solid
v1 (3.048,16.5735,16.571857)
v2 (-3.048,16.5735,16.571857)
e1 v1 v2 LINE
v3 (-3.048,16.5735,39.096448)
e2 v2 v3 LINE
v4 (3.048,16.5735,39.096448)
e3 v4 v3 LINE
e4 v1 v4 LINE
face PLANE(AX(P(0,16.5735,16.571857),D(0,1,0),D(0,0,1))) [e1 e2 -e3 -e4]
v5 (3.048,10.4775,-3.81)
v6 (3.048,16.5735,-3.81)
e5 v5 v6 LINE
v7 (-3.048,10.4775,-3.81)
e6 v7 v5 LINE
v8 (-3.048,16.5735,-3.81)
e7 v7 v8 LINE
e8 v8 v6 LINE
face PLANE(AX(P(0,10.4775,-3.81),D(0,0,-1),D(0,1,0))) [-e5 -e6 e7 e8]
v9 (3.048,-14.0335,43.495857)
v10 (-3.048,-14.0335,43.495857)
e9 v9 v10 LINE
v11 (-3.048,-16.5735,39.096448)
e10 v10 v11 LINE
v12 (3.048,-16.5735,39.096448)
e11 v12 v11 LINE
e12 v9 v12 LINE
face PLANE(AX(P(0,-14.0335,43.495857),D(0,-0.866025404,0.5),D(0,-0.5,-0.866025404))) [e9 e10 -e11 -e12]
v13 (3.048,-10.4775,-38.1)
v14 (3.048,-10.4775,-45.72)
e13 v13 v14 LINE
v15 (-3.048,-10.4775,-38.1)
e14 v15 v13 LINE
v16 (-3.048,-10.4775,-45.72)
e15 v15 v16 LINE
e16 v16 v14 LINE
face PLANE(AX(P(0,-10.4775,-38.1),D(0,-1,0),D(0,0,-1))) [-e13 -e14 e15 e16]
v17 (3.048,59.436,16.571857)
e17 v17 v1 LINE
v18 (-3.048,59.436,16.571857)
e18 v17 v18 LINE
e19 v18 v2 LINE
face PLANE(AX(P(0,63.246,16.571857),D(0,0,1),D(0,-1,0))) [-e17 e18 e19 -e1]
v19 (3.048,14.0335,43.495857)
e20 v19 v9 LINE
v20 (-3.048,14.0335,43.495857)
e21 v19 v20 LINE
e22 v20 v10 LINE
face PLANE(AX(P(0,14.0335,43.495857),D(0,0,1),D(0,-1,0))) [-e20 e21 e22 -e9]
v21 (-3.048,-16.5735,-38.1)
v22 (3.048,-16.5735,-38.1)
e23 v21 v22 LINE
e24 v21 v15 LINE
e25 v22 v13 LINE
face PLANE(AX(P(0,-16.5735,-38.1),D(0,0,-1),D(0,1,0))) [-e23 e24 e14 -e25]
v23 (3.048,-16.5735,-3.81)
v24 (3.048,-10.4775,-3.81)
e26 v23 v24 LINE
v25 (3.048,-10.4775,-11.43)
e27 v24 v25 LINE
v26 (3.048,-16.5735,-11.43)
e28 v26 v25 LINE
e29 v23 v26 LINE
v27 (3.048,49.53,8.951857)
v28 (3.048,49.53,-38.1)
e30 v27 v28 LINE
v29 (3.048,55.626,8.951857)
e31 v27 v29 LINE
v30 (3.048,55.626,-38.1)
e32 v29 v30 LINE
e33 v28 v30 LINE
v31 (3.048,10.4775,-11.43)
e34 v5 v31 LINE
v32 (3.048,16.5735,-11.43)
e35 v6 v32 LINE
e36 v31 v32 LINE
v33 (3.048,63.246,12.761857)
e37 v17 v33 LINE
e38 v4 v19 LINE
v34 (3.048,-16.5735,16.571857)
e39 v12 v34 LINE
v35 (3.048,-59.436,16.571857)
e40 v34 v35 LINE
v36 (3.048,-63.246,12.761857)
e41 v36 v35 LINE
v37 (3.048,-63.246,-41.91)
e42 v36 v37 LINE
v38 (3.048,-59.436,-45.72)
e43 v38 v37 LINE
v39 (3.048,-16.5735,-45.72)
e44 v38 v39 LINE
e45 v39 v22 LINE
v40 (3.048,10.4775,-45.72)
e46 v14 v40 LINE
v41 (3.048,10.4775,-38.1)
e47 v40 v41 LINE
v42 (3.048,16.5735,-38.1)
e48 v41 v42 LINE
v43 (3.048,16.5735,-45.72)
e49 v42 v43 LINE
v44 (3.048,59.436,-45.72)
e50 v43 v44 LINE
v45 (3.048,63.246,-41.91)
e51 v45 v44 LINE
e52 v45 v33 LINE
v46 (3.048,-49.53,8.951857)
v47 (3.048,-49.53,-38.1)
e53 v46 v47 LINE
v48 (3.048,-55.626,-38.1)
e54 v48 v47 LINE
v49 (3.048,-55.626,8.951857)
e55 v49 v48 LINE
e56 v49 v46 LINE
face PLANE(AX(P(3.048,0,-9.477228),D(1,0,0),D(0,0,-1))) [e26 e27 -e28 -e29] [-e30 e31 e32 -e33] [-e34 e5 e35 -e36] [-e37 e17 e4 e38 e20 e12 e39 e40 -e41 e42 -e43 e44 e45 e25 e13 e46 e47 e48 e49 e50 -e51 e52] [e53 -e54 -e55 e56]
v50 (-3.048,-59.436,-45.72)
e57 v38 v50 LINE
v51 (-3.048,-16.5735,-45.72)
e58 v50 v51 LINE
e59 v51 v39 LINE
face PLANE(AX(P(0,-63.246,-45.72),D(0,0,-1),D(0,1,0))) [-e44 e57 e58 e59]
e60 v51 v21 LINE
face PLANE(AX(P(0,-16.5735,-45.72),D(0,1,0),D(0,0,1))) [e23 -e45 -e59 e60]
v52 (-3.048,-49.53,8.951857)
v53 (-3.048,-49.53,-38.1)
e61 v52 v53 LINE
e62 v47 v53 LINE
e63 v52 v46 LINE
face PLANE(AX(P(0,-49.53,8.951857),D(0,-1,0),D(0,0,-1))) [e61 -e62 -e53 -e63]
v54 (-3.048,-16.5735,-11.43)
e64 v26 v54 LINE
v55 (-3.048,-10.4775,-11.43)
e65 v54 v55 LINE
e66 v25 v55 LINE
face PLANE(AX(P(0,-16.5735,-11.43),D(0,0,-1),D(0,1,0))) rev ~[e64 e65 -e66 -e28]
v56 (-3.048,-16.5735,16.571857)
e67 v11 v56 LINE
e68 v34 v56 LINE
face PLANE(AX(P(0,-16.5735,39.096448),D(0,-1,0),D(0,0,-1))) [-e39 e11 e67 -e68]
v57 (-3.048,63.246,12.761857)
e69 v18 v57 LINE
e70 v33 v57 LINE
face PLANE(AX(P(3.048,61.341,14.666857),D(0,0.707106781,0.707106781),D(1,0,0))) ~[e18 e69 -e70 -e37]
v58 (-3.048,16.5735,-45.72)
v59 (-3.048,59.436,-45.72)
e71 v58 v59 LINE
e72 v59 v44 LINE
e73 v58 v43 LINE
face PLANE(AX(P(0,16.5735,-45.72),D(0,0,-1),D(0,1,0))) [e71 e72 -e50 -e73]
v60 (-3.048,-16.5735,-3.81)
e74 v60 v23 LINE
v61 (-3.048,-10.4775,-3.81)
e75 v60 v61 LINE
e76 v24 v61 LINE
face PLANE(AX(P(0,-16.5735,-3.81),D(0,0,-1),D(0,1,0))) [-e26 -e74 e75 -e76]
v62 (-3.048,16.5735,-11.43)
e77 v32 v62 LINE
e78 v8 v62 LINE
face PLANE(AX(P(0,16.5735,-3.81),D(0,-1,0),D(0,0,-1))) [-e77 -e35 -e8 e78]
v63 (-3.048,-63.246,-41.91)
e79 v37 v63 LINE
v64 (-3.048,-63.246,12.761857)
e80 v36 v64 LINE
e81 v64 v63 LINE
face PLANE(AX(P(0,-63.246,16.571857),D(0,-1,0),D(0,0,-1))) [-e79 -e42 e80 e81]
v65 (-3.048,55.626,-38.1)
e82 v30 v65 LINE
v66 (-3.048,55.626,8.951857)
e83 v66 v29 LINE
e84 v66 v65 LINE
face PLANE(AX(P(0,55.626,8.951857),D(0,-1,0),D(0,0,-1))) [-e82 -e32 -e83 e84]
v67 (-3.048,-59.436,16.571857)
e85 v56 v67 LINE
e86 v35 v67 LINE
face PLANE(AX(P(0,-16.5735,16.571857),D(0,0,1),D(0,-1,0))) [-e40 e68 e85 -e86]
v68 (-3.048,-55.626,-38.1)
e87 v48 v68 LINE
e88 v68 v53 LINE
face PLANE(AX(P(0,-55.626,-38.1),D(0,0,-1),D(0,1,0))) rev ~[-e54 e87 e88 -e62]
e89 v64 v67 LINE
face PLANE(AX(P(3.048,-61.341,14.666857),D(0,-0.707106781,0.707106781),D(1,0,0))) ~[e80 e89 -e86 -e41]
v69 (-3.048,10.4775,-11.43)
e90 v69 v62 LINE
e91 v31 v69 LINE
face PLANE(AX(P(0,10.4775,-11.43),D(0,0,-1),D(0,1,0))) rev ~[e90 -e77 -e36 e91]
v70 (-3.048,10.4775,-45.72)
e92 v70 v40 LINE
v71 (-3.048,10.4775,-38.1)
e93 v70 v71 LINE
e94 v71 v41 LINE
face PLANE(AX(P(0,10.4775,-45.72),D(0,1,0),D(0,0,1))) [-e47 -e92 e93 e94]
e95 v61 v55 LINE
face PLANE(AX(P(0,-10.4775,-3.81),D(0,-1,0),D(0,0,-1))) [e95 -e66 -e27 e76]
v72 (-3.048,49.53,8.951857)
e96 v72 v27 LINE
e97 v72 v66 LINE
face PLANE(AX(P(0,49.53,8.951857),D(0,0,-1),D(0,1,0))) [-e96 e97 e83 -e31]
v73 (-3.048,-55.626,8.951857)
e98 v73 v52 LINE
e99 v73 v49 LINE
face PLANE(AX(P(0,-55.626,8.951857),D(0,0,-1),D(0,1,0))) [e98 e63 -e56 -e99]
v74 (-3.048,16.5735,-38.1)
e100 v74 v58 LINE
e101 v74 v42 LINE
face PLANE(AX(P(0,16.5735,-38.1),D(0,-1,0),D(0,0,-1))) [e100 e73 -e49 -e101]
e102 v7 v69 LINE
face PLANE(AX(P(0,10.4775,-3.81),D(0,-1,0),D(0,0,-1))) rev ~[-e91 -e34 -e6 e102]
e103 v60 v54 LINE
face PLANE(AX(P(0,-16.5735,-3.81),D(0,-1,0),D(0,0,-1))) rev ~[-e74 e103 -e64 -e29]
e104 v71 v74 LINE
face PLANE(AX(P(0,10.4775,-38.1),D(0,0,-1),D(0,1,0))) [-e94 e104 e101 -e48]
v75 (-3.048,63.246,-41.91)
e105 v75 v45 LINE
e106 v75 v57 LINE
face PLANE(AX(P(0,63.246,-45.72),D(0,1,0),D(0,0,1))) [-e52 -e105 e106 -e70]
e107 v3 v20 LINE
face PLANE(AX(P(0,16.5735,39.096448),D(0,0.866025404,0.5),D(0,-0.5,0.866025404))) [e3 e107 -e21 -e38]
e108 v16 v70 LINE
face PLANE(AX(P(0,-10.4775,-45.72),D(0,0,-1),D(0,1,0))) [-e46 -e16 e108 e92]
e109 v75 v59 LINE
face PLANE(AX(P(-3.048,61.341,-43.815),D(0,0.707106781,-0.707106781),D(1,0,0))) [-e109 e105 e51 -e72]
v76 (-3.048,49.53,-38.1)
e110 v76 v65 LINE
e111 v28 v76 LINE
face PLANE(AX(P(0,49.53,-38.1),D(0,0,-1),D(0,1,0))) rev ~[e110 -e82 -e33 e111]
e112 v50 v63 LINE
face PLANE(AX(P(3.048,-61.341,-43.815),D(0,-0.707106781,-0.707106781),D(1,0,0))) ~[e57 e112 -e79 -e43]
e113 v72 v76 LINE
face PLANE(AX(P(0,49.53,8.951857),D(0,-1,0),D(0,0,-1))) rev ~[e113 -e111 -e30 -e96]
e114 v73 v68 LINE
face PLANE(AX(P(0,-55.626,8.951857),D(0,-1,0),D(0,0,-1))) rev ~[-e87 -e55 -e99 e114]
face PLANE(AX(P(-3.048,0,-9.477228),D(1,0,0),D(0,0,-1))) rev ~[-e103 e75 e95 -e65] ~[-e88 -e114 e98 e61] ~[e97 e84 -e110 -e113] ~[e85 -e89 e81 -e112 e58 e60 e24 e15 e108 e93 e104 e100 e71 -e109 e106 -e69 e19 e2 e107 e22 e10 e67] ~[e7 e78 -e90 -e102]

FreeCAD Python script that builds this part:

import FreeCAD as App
import Part
import Sketcher

V = App.Vector
Q = App.Units.Quantity


def edges_at(feature, points):
    """Names of the edges that pass closest to the given points."""
    edges = feature.Shape.Edges
    near = lambda p: min(range(len(edges)), key=lambda i: edges[i].distToShape(Part.Vertex(*p))[0])
    return sorted({f"Edge{near(p) + 1}" for p in points})


def add_polygon(sketch, points):
    """Adds a closed chain of lines whose ends are joined by coincident constraints."""
    first, n = sketch.GeometryCount, len(points)
    for a, b in zip(points, points[1:] + points[:1]):
        sketch.addGeometry(Part.LineSegment(App.Vector(*a, 0), App.Vector(*b, 0)), False)
    for i in range(n):
        sketch.addConstraint(Sketcher.Constraint("Coincident", first + i, 2, first + (i + 1) % n, 1))

doc = App.newDocument("Part")
body = doc.addObject("PartDesign::Body", "Body")

# Sketch on YZ plane
sketch1 = doc.addObject("Sketcher::SketchObject", "Sketch")
body.addObject(sketch1)
sketch1.AttachmentSupport = (doc.YZ_Plane, [""])
sketch1.MapMode = "FlatFace"
add_polygon(sketch1, [(-63, -46), (-17, -46), (-17, -38), (-10, -38), (-10, -46), (10, -46), (10, -38), (17, -38), (17, -46), (63, -46), (63, 17), (17, 17), (17, 39), (14, 43), (-14, 43), (-17, 39), (-17, 17), (-63, 17)])  # lines 0-17
add_polygon(sketch1, [(-56, -38), (-56, 9), (-50, 9), (-50, -38)])  # lines 18-21
add_polygon(sketch1, [(-17, -11), (-17, -4), (-10, -4), (-10, -11)])  # lines 22-25
add_polygon(sketch1, [(10, -11), (10, -4), (17, -4), (17, -11)])  # lines 26-29
add_polygon(sketch1, [(50, -38), (50, 9), (56, 9), (56, -38)])  # lines 30-33
sketch1.addConstraint(Sketcher.Constraint("Horizontal", 0))
sketch1.addConstraint(Sketcher.Constraint("Vertical", 1))
sketch1.addConstraint(Sketcher.Constraint("Horizontal", 2))
sketch1.addConstraint(Sketcher.Constraint("Vertical", 3))
sketch1.addConstraint(Sketcher.Constraint("Horizontal", 4))
sketch1.addConstraint(Sketcher.Constraint("Vertical", 5))
sketch1.addConstraint(Sketcher.Constraint("Horizontal", 6))
sketch1.addConstraint(Sketcher.Constraint("Vertical", 7))
sketch1.addConstraint(Sketcher.Constraint("Horizontal", 8))
sketch1.addConstraint(Sketcher.Constraint("Vertical", 9))
sketch1.addConstraint(Sketcher.Constraint("Horizontal", 10))
sketch1.addConstraint(Sketcher.Constraint("Vertical", 11))
sketch1.addConstraint(Sketcher.Constraint("Horizontal", 13))
sketch1.addConstraint(Sketcher.Constraint("Vertical", 15))
sketch1.addConstraint(Sketcher.Constraint("Horizontal", 16))
sketch1.addConstraint(Sketcher.Constraint("Vertical", 17))
sketch1.addConstraint(Sketcher.Constraint("Vertical", 18))
sketch1.addConstraint(Sketcher.Constraint("Horizontal", 19))
sketch1.addConstraint(Sketcher.Constraint("Vertical", 20))
sketch1.addConstraint(Sketcher.Constraint("Horizontal", 21))
sketch1.addConstraint(Sketcher.Constraint("Vertical", 22))
sketch1.addConstraint(Sketcher.Constraint("Horizontal", 23))
sketch1.addConstraint(Sketcher.Constraint("Vertical", 24))
sketch1.addConstraint(Sketcher.Constraint("Horizontal", 25))
sketch1.addConstraint(Sketcher.Constraint("Vertical", 26))
sketch1.addConstraint(Sketcher.Constraint("Horizontal", 27))
sketch1.addConstraint(Sketcher.Constraint("Vertical", 28))
sketch1.addConstraint(Sketcher.Constraint("Horizontal", 29))
sketch1.addConstraint(Sketcher.Constraint("Vertical", 30))
sketch1.addConstraint(Sketcher.Constraint("Horizontal", 31))
sketch1.addConstraint(Sketcher.Constraint("Vertical", 32))
sketch1.addConstraint(Sketcher.Constraint("Horizontal", 33))
sketch1.addConstraint(Sketcher.Constraint("Symmetric", 2, 2, 5, 2, -2))
sketch1.addConstraint(Sketcher.Constraint("Symmetric", 0, 2, 7, 2, -2))
sketch1.addConstraint(Sketcher.Constraint("Symmetric", 11, 2, 14, 2, -2))
sketch1.addConstraint(Sketcher.Constraint("Symmetric", 9, 2, 16, 2, -2))
sketch1.addConstraint(Sketcher.Constraint("Symmetric", 23, 2, 26, 2, -2))
sketch1.addConstraint(Sketcher.Constraint("Symmetric", 25, 2, 28, 2, -2))
sketch1.addConstraint(Sketcher.Constraint("Symmetric", 19, 2, 30, 2, -2))
sketch1.addConstraint(Sketcher.Constraint("Symmetric", 21, 2, 32, 2, -2))
sketch1.addConstraint(Sketcher.Constraint("Horizontal", 0, 2, 3, 2))
sketch1.addConstraint(Sketcher.Constraint("Horizontal", 6, 2, 20, 2))
sketch1.addConstraint(Sketcher.Constraint("Vertical", 7, 2, 10, 2))
sketch1.addConstraint(Sketcher.Constraint("Vertical", 15, 2, 22, 2))
sketch1.addConstraint(Sketcher.Constraint("Vertical", 3, 2, 23, 2))
sketch1.addConstraint(Sketcher.Constraint("Equal", 6, 19))
sketch1.addConstraint(Sketcher.Constraint("Equal", 7, 22))
sketch1.addConstraint(Sketcher.Constraint("Equal", 12, 14))
sketch1.addConstraint(Sketcher.Constraint("DistanceY", 1, 1, 1, 2, Q("0.3 in")))
sketch1.addConstraint(Sketcher.Constraint("Angle", 12, Q("120 deg")))
sketch1.addConstraint(Sketcher.Constraint("Distance", 12, Q("0.2 in")))
sketch1.addConstraint(Sketcher.Constraint("DistanceX", 2, 1, 2, 2, Q("0.24 in")))
sketch1.addConstraint(Sketcher.Constraint("DistanceY", 0, 2, -1, 1, Q("1.8 in")))
sketch1.addConstraint(Sketcher.Constraint("DistanceX", 16, 2, 18, 2, Q("0.3 in")))
sketch1.addConstraint(Sketcher.Constraint("DistanceY", 18, 2, 16, 2, Q("0.3 in")))
sketch1.addConstraint(Sketcher.Constraint("DistanceX", 4, 1, 4, 2, Q("0.825 in")))
sketch1.addConstraint(Sketcher.Constraint("DistanceX", -1, 1, 8, 2, Q("2.49 in")))
sketch1.addConstraint(Sketcher.Constraint("DistanceY", 22, 2, -1, 1, Q("0.15 in")))
sketch1.addConstraint(Sketcher.Constraint("DistanceY", 10, 2, 12, 2, Q("1.06 in")))
sketch1.addConstraint(Sketcher.Constraint("DistanceY", 9, 1, 9, 2, Q("62.291857 mm")))
pad1 = doc.addObject("PartDesign::Pad", "Pad")
body.addObject(pad1)
pad1.Profile = sketch1
pad1.Length = Q("0.24 in")
pad1.Midplane = True
doc.recompute()

chamfer = doc.addObject("PartDesign::Chamfer", "Chamfer")
body.addObject(chamfer)
chamfer.Base = (pad1, edges_at(pad1, [
    (0, -63.246, -45.72),
    (0, -63.246, 16.572),
    (0, 63.246, 16.572),
    (0, 63.246, -45.72),
]))
chamfer.Size = Q("0.15 in")

doc.recompute()
